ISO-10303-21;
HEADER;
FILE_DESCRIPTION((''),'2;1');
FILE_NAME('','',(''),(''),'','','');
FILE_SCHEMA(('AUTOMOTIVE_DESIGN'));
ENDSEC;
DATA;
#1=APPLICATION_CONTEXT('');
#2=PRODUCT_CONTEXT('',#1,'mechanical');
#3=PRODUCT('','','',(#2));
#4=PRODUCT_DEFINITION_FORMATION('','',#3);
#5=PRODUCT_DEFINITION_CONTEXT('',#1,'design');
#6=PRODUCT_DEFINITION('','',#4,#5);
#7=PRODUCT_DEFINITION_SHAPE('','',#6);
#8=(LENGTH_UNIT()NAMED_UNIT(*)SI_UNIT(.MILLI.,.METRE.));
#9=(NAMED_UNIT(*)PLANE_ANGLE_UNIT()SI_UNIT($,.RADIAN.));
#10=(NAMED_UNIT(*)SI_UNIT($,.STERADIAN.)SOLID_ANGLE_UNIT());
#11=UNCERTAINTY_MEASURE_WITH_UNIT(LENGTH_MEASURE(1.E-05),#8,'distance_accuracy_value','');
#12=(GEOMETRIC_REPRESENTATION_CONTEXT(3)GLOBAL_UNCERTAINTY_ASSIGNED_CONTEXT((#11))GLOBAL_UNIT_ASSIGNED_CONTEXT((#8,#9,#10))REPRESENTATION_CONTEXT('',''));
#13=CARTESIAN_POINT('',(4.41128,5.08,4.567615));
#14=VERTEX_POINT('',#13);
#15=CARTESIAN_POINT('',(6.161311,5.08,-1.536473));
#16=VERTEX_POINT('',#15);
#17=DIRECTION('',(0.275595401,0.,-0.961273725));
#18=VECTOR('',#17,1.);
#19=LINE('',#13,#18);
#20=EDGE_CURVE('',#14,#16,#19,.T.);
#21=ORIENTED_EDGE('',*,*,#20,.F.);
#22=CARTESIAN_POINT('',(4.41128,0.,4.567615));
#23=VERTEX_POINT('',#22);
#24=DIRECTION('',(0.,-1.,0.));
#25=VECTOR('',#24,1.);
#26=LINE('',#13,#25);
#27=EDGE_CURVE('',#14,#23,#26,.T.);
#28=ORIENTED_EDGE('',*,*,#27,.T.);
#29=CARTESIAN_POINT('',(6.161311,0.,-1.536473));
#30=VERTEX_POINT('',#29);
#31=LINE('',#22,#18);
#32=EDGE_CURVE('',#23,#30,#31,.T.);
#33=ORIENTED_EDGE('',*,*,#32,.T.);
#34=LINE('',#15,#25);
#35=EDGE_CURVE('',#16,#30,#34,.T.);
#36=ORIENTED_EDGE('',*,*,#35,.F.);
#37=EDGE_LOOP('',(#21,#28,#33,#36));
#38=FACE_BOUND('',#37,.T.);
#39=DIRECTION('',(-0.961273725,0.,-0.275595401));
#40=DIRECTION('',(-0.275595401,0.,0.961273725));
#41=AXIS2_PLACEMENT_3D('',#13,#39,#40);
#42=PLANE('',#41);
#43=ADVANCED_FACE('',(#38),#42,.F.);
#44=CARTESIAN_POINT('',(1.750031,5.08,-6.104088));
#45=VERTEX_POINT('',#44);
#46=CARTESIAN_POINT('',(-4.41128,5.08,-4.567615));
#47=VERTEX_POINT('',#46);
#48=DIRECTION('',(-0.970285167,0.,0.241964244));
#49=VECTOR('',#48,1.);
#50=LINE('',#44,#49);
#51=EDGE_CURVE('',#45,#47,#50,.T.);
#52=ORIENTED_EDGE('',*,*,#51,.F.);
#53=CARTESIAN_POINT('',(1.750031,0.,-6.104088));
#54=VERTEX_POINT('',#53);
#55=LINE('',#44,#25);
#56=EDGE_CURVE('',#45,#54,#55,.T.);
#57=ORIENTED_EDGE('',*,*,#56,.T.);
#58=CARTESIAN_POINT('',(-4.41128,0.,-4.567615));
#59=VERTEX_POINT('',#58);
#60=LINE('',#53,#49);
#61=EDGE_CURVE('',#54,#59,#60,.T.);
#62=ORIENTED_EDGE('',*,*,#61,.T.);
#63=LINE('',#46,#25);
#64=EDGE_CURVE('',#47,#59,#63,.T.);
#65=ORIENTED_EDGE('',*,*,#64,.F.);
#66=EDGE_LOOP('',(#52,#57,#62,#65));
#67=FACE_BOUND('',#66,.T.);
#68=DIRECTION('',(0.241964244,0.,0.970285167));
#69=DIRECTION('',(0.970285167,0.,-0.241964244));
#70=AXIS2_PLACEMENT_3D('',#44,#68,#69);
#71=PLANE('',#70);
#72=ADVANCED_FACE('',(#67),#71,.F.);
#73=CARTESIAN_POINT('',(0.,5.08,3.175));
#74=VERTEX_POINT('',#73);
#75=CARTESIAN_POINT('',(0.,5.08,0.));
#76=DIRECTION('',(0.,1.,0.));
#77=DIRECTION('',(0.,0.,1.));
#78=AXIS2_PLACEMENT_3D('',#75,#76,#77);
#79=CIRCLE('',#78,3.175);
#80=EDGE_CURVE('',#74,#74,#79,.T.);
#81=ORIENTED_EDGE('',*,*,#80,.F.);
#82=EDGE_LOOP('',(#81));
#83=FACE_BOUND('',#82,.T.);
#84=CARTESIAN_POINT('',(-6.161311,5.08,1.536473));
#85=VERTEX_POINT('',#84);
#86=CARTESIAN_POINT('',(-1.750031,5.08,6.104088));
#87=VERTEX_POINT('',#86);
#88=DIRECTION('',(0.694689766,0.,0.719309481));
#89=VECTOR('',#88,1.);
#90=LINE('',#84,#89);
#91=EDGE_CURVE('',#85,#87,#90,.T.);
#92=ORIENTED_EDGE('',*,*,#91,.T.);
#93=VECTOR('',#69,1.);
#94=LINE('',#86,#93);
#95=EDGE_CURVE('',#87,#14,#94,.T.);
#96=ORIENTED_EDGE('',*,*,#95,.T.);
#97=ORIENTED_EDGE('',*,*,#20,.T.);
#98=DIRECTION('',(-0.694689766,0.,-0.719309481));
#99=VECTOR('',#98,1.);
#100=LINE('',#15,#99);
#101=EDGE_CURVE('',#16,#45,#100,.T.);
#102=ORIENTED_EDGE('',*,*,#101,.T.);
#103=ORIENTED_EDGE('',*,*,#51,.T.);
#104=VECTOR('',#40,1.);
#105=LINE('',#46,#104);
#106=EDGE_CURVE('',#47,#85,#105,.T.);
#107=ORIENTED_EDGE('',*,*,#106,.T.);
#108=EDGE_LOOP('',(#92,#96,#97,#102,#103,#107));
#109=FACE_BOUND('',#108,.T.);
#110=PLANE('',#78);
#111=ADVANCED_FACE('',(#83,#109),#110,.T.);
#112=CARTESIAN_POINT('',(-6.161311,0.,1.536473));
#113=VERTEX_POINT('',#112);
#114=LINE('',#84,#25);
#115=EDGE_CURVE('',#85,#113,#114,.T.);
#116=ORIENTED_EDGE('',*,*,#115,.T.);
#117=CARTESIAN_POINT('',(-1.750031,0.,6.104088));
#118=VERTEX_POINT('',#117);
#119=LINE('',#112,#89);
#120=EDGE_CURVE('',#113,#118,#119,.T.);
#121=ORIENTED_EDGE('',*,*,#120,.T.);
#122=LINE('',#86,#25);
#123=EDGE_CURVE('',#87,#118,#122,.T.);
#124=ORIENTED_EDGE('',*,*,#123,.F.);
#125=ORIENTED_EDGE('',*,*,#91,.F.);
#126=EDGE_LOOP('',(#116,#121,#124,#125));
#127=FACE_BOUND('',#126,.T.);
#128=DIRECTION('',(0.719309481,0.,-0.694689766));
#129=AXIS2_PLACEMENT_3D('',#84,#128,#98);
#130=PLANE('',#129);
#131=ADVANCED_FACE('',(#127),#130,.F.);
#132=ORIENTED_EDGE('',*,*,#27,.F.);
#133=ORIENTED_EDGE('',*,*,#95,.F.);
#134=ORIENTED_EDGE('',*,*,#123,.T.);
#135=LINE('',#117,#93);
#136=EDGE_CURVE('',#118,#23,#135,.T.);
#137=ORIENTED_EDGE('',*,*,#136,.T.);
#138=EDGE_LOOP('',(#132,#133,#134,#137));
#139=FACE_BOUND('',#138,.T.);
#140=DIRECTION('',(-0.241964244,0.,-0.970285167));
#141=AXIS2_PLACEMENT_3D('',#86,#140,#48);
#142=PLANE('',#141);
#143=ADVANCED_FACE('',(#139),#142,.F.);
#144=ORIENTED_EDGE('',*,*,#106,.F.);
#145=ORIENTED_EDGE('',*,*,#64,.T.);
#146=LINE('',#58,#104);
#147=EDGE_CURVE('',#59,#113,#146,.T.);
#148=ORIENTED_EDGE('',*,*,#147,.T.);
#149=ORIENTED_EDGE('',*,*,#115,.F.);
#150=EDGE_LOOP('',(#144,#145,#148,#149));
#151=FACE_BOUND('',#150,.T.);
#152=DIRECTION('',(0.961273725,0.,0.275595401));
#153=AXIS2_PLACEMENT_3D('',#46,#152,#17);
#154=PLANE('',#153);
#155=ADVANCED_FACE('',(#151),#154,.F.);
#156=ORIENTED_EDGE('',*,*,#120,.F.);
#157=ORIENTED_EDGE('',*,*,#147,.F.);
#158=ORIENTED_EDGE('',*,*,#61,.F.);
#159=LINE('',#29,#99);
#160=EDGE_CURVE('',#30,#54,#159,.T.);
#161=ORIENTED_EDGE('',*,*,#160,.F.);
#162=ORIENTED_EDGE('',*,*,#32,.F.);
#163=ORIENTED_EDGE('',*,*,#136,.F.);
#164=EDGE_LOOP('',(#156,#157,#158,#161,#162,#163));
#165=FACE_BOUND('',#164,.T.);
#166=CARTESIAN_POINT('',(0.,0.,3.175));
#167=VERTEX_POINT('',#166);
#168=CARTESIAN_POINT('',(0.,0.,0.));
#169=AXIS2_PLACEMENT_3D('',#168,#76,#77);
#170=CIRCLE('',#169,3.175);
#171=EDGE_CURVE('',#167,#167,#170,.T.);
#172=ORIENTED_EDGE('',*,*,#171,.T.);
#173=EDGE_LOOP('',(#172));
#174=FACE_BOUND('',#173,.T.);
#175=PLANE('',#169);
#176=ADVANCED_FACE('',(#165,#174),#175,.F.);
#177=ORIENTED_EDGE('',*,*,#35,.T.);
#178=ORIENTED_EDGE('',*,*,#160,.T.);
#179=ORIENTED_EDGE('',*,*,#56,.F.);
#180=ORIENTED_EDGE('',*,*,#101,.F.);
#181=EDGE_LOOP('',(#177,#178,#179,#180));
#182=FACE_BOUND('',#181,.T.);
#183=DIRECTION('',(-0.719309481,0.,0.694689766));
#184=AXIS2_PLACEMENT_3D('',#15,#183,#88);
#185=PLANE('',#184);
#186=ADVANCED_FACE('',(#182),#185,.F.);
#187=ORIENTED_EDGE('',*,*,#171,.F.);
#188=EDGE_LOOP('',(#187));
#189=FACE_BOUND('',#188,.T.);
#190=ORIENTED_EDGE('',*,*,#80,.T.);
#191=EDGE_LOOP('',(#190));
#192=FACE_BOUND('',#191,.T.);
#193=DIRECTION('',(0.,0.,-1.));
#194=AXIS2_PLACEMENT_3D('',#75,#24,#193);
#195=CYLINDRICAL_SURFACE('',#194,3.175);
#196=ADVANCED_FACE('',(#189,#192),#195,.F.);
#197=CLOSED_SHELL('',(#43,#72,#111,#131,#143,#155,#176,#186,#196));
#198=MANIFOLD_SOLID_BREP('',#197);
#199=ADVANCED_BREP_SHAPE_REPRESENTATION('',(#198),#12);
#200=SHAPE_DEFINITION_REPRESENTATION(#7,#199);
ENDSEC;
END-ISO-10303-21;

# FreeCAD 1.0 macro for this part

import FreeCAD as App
import Part
import Sketcher

V = App.Vector
Q = App.Units.Quantity

doc = App.newDocument("Part")
params = doc.addObject("Spreadsheet::Sheet", "Params")
for row, (alias, value) in enumerate([
    ("sketch1_diameter", "0.25 in"),
    ("sketch1_length", "0.25 in"),
    ("pad1_length", "0.2 in"),
], start=1):
    params.set(f"A{row}", alias)
    params.set(f"B{row}", "=" + value)
    params.setAlias(f"B{row}", alias)

body = doc.addObject("PartDesign::Body", "Body")

sketch1 = body.newObject("Sketcher::SketchObject", "Sketch")
sketch1.AttachmentSupport = (doc.getObject("XZ_Plane"), [""])
sketch1.MapMode = "FlatFace"
sketch1.addGeometry([
    Part.LineSegment(V(6.2, -1.5, 0), V(1.8, -6.1, 0)),
    Part.LineSegment(V(1.8, -6.1, 0), V(-4.4, -4.6, 0)),
    Part.LineSegment(V(-4.4, -4.6, 0), V(-6.2, 1.5, 0)),
    Part.LineSegment(V(-6.2, 1.5, 0), V(-1.8, 6.1, 0)),
    Part.LineSegment(V(-1.8, 6.1, 0), V(4.4, 4.6, 0)),
    Part.LineSegment(V(4.4, 4.6, 0), V(6.2, -1.5, 0)),
    Part.Circle(V(0, 0, 0), V(0, 0, 1), 3.2),
], False)
sketch1.addConstraint([
    Sketcher.Constraint("Coincident", 0, 2, 1, 1),
    Sketcher.Constraint("Coincident", 1, 2, 2, 1),
    Sketcher.Constraint("Coincident", 2, 2, 3, 1),
    Sketcher.Constraint("Coincident", 3, 2, 4, 1),
    Sketcher.Constraint("Coincident", 4, 2, 5, 1),
    Sketcher.Constraint("Coincident", 5, 2, 0, 1),
    Sketcher.Constraint("Coincident", 6, 3, -1, 1),
    Sketcher.Constraint("Symmetric", 0, 2, 3, 2, -1, 1),
    Sketcher.Constraint("Symmetric", 1, 2, 4, 2, -1, 1),
    Sketcher.Constraint("Symmetric", 2, 2, 5, 2, -1, 1),
    Sketcher.Constraint("Equal", 0, 1),
    Sketcher.Constraint("Equal", 1, 2),
    Sketcher.Constraint("Diameter", 6, Q("0.25 in")),
    Sketcher.Constraint("Distance", 0, Q("0.25 in")),
    Sketcher.Constraint("DistanceX", -1, 1, 0, 2, 1.750031),
    Sketcher.Constraint("DistanceY", 0, 2, -1, 1, 6.104088),
    Sketcher.Constraint("DistanceX", 1, 2, -1, 1, 4.41128),
])
sketch1.setExpression("Constraints[12]", "Params.sketch1_diameter")
sketch1.setExpression("Constraints[13]", "Params.sketch1_length")
pad1 = body.newObject("PartDesign::Pad", "Pad")
pad1.Profile = sketch1
pad1.setExpression("Length", "Params.pad1_length")
pad1.Reversed = True

doc.recompute()
